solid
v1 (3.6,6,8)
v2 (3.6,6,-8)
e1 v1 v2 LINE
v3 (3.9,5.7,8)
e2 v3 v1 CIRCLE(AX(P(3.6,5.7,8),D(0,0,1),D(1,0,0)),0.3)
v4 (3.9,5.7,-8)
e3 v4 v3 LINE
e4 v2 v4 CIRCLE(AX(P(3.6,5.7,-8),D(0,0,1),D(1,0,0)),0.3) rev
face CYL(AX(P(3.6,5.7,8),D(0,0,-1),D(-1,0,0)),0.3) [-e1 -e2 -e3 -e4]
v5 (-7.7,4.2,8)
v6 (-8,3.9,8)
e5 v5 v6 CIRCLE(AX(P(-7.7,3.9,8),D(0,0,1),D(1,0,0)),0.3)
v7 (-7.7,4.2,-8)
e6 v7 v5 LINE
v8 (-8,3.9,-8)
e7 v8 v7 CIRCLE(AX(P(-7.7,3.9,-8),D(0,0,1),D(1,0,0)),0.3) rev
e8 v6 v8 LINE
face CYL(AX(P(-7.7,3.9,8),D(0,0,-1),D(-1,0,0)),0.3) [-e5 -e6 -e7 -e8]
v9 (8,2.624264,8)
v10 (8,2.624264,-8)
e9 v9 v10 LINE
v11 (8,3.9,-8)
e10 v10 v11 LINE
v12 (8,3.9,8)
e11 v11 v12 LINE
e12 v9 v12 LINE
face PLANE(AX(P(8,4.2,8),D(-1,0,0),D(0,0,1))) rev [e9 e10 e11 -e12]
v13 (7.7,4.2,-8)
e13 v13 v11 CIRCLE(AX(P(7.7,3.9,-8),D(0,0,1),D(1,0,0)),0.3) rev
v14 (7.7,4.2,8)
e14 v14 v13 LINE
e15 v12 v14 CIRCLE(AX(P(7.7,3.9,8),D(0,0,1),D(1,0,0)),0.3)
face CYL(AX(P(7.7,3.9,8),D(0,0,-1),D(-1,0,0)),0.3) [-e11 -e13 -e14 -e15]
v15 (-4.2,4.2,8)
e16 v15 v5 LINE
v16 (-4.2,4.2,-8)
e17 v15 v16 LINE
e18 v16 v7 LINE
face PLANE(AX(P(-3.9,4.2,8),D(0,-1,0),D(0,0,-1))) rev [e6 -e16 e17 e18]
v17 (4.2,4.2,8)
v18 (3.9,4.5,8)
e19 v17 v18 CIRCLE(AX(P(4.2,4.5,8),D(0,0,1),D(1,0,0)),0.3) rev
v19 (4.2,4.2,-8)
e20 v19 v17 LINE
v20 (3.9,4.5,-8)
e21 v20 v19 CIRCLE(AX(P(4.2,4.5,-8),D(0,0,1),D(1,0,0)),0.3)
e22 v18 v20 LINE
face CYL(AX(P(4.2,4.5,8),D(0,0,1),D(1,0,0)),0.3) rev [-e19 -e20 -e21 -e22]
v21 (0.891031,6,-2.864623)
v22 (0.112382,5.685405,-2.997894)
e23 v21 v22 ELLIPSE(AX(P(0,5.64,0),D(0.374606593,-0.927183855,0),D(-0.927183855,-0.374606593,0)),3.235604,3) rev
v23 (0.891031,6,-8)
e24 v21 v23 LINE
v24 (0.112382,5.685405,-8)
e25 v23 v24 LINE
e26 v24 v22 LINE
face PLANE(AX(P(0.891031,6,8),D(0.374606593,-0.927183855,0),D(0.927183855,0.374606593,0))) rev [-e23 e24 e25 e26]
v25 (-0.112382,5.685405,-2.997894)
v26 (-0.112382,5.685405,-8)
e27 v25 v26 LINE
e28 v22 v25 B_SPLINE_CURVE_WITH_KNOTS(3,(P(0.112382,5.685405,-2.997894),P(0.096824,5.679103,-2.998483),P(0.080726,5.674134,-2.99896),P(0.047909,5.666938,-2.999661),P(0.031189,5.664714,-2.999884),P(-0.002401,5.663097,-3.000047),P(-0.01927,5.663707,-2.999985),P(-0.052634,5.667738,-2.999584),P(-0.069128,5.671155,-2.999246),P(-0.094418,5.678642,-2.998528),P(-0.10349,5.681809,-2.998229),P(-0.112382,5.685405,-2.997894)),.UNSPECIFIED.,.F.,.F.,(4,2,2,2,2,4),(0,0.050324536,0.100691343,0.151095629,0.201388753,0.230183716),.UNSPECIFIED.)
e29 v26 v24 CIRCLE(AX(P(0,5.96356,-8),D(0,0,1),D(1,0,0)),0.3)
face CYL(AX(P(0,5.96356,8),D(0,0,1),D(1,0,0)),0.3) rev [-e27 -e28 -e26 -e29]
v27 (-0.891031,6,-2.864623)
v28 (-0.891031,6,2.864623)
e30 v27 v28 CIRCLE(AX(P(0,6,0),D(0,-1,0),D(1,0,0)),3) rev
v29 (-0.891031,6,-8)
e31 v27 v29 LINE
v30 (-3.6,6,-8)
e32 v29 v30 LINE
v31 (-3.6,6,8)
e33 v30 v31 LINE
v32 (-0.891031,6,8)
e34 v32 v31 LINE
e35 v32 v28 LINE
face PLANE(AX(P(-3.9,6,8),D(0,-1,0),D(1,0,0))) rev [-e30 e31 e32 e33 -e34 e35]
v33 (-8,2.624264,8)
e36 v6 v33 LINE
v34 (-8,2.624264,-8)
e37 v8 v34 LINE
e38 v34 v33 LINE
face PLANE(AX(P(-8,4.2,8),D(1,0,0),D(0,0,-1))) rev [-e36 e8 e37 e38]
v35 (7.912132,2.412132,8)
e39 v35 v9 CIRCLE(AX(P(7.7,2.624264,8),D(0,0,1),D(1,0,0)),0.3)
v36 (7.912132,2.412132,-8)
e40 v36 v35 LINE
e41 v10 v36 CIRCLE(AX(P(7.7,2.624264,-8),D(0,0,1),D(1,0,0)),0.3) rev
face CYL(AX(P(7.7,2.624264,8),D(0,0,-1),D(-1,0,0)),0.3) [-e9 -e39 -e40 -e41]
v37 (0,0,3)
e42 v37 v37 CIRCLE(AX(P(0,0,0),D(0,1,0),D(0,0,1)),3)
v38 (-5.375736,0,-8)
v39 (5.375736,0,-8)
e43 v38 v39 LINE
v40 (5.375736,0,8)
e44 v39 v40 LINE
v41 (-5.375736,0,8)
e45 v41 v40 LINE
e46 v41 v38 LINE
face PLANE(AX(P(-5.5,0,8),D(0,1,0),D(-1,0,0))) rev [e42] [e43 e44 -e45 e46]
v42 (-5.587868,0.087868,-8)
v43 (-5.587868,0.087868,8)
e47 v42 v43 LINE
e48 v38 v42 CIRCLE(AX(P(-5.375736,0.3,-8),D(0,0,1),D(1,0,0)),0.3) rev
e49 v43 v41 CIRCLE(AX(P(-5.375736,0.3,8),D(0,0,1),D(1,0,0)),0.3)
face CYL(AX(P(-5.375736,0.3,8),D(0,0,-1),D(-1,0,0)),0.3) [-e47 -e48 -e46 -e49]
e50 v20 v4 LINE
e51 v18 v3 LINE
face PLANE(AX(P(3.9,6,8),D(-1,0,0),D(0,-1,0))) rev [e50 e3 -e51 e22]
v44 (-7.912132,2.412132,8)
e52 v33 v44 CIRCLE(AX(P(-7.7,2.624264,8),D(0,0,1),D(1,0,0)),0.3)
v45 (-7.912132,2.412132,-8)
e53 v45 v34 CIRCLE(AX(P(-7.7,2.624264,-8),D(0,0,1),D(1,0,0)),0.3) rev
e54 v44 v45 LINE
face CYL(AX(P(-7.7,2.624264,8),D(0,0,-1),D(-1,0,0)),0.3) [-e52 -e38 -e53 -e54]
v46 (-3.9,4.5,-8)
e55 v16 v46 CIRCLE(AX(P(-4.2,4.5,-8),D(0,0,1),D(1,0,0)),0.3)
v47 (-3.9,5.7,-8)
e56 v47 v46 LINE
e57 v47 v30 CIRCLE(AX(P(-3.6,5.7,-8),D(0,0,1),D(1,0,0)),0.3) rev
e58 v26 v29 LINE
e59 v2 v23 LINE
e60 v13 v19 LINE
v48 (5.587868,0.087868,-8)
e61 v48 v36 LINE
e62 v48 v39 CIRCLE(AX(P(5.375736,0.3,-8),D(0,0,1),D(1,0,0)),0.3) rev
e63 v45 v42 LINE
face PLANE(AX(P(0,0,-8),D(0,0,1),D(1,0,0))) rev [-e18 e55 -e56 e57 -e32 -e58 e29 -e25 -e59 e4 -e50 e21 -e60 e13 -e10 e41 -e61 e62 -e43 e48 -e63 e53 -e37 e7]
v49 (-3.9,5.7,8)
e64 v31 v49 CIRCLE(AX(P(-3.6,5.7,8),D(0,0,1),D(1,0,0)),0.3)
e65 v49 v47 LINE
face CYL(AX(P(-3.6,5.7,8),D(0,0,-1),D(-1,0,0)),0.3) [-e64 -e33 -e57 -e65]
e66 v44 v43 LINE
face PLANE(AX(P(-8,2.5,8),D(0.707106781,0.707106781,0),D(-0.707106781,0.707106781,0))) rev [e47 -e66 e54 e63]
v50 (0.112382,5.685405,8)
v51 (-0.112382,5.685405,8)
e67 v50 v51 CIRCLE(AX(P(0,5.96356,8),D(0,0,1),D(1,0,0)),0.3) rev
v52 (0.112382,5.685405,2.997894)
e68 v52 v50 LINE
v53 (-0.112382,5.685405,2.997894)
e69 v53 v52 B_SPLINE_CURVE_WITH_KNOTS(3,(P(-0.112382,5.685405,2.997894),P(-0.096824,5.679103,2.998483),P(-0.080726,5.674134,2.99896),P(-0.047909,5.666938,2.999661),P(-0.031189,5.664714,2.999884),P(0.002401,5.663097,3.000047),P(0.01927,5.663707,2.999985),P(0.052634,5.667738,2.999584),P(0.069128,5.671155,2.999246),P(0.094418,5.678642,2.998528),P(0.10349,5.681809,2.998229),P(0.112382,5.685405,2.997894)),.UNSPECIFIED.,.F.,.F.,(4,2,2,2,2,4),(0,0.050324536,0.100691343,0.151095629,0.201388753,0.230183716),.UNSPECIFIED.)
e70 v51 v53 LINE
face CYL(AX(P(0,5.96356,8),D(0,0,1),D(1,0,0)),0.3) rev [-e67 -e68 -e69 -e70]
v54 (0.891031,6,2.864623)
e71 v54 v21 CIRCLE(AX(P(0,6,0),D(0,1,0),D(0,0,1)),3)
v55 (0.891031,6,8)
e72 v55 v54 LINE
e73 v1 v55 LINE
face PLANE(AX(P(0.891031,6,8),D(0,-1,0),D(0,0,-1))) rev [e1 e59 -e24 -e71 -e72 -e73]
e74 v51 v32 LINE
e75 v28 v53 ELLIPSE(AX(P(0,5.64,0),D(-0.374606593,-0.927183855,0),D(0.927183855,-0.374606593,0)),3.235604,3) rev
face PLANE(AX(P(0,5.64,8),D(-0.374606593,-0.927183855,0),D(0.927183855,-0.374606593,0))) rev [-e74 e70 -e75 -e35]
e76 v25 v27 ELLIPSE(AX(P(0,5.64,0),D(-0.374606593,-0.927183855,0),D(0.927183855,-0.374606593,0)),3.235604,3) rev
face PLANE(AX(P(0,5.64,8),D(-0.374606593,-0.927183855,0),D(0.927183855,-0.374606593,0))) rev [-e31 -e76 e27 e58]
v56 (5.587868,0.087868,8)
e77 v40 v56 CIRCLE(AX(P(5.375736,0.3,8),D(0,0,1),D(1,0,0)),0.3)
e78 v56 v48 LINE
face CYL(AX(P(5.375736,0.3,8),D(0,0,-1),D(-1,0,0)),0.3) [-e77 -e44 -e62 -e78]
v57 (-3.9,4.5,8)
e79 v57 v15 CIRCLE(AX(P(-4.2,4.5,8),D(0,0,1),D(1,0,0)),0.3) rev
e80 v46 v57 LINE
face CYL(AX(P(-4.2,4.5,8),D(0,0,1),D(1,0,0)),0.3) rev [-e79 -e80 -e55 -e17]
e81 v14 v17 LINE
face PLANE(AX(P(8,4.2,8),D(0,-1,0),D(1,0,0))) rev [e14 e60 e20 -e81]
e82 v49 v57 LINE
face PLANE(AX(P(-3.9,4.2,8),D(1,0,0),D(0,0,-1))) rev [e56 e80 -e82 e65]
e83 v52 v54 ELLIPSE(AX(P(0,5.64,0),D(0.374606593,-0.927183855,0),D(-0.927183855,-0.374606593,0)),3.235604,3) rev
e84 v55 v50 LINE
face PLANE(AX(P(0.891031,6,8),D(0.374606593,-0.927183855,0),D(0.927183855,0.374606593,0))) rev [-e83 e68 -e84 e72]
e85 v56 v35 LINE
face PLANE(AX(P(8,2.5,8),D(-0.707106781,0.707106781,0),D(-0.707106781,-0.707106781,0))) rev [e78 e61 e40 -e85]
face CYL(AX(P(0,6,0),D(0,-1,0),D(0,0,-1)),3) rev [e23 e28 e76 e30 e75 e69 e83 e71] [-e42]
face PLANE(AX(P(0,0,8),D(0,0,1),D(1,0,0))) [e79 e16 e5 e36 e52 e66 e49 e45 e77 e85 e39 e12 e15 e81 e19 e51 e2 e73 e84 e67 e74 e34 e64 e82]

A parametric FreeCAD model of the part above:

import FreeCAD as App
import Part
import Sketcher

V = App.Vector
Q = App.Units.Quantity


def edges_at(feature, points):
    """Names of the edges that pass closest to the given points."""
    edges = feature.Shape.Edges
    near = lambda p: min(range(len(edges)), key=lambda i: edges[i].distToShape(Part.Vertex(*p))[0])
    return sorted({f"Edge{near(p) + 1}" for p in points})

doc = App.newDocument("Part")
body = doc.addObject("PartDesign::Body", "Body")

# Sketch on XY plane
sketch1 = doc.addObject("Sketcher::SketchObject", "Sketch")
body.addObject(sketch1)
sketch1.AttachmentSupport = (doc.XY_Plane, [""])
sketch1.MapMode = "FlatFace"
sketch1.addGeometry([
    Part.LineSegment(V(-8, 4.2, 0), V(-8, 2.5, 0)),  # 0
    Part.LineSegment(V(-8, 2.5, 0), V(-5.5, 0, 0)),  # 1
    Part.LineSegment(V(-5.5, 0, 0), V(5.5, 0, 0)),  # 2
    Part.LineSegment(V(5.5, 0, 0), V(8, 2.5, 0)),  # 3
    Part.LineSegment(V(8, 2.5, 0), V(8, 4.2, 0)),  # 4
    Part.LineSegment(V(8, 4.2, 0), V(3.9, 4.2, 0)),  # 5
    Part.LineSegment(V(3.9, 4.2, 0), V(3.9, 6, 0)),  # 6
    Part.LineSegment(V(3.9, 6, 0), V(0.9, 6, 0)),  # 7
    Part.LineSegment(V(0.9, 6, 0), V(0, 5.6, 0)),  # 8
    Part.LineSegment(V(0, 5.6, 0), V(-0.9, 6, 0)),  # 9
    Part.LineSegment(V(-0.9, 6, 0), V(-3.9, 6, 0)),  # 10
    Part.LineSegment(V(-3.9, 6, 0), V(-3.9, 4.2, 0)),  # 11
    Part.LineSegment(V(-3.9, 4.2, 0), V(-8, 4.2, 0)),  # 12
], False)
sketch1.addConstraint([
    Sketcher.Constraint("Coincident", 0, 2, 1, 1),
    Sketcher.Constraint("Coincident", 1, 2, 2, 1),
    Sketcher.Constraint("Coincident", 2, 2, 3, 1),
    Sketcher.Constraint("Coincident", 3, 2, 4, 1),
    Sketcher.Constraint("Coincident", 4, 2, 5, 1),
    Sketcher.Constraint("Coincident", 5, 2, 6, 1),
    Sketcher.Constraint("Coincident", 6, 2, 7, 1),
    Sketcher.Constraint("Coincident", 7, 2, 8, 1),
    Sketcher.Constraint("Coincident", 8, 2, 9, 1),
    Sketcher.Constraint("Coincident", 9, 2, 10, 1),
    Sketcher.Constraint("Coincident", 10, 2, 11, 1),
    Sketcher.Constraint("Coincident", 11, 2, 12, 1),
    Sketcher.Constraint("Coincident", 12, 2, 0, 1),
    Sketcher.Constraint("Vertical", 0),
    Sketcher.Constraint("Horizontal", 2),
    Sketcher.Constraint("Vertical", 4),
    Sketcher.Constraint("Horizontal", 5),
    Sketcher.Constraint("Vertical", 6),
    Sketcher.Constraint("Horizontal", 7),
    Sketcher.Constraint("Horizontal", 10),
    Sketcher.Constraint("Vertical", 11),
    Sketcher.Constraint("Horizontal", 12),
    Sketcher.Constraint("Symmetric", 1, 2, 2, 2, -1, 1),
    Sketcher.Constraint("Symmetric", 0, 2, 3, 2, -2),
    Sketcher.Constraint("Symmetric", 7, 2, 9, 2, -2),
    Sketcher.Constraint("Symmetric", 5, 2, 11, 2, -2),
    Sketcher.Constraint("PointOnObject", 8, 2, -2),
    Sketcher.Constraint("Perpendicular", 1, 3),
    Sketcher.Constraint("DistanceX", 2, 1, 2, 2, Q("11 mm")),
    Sketcher.Constraint("Angle", 8, Q("-158 deg")),
    Sketcher.Constraint("DistanceX", 5, 2, 5, 1, Q("4.1 mm")),
    Sketcher.Constraint("DistanceY", 0, 2, 0, 1, Q("1.7 mm")),
    Sketcher.Constraint("DistanceY", 6, 1, 6, 2, Q("1.8 mm")),
    Sketcher.Constraint("DistanceX", 0, 2, -1, 1, Q("8 mm")),
    Sketcher.Constraint("DistanceY", -1, 1, 8, 2, Q("5.64 mm")),
])
pad1 = doc.addObject("PartDesign::Pad", "Pad")
body.addObject(pad1)
pad1.Profile = sketch1
pad1.Type = "TwoLengths"
pad1.Length = 8
pad1.Length2 = 8

# Sketch on XZ plane
sketch2 = doc.addObject("Sketcher::SketchObject", "Sketch001")
body.addObject(sketch2)
sketch2.AttachmentSupport = (doc.XZ_Plane, [""])
sketch2.MapMode = "FlatFace"
sketch2.addGeometry(Part.Circle(V(0, 0, 0), V(0, 0, 1), 3), False)
sketch2.addConstraint([
    Sketcher.Constraint("Coincident", 0, 3, -1, 1),
    Sketcher.Constraint("Diameter", 0, Q("6 mm")),
])
pocket1 = doc.addObject("PartDesign::Pocket", "Pocket")
body.addObject(pocket1)
pocket1.Profile = sketch2
pocket1.Type = "ThroughAll"
doc.recompute()

fillet = doc.addObject("PartDesign::Fillet", "Fillet")
body.addObject(fillet)
fillet.Base = (pocket1, edges_at(pocket1, [
    (-3.9, 6, 0),
    (-3.9, 4.2, 0),
    (-8, 4.2, 0),
    (-8, 2.5, 0),
    (-5.5, 0, 0),
    (5.5, 0, 0),
    (8, 2.5, 0),
    (8, 4.2, 0),
    (3.9, 4.2, 0),
    (3.9, 6, 0),
    (0, 5.64, -5.5),
    (0, 5.64, 5.5),
]))
fillet.Radius = 0.3

doc.recompute()
